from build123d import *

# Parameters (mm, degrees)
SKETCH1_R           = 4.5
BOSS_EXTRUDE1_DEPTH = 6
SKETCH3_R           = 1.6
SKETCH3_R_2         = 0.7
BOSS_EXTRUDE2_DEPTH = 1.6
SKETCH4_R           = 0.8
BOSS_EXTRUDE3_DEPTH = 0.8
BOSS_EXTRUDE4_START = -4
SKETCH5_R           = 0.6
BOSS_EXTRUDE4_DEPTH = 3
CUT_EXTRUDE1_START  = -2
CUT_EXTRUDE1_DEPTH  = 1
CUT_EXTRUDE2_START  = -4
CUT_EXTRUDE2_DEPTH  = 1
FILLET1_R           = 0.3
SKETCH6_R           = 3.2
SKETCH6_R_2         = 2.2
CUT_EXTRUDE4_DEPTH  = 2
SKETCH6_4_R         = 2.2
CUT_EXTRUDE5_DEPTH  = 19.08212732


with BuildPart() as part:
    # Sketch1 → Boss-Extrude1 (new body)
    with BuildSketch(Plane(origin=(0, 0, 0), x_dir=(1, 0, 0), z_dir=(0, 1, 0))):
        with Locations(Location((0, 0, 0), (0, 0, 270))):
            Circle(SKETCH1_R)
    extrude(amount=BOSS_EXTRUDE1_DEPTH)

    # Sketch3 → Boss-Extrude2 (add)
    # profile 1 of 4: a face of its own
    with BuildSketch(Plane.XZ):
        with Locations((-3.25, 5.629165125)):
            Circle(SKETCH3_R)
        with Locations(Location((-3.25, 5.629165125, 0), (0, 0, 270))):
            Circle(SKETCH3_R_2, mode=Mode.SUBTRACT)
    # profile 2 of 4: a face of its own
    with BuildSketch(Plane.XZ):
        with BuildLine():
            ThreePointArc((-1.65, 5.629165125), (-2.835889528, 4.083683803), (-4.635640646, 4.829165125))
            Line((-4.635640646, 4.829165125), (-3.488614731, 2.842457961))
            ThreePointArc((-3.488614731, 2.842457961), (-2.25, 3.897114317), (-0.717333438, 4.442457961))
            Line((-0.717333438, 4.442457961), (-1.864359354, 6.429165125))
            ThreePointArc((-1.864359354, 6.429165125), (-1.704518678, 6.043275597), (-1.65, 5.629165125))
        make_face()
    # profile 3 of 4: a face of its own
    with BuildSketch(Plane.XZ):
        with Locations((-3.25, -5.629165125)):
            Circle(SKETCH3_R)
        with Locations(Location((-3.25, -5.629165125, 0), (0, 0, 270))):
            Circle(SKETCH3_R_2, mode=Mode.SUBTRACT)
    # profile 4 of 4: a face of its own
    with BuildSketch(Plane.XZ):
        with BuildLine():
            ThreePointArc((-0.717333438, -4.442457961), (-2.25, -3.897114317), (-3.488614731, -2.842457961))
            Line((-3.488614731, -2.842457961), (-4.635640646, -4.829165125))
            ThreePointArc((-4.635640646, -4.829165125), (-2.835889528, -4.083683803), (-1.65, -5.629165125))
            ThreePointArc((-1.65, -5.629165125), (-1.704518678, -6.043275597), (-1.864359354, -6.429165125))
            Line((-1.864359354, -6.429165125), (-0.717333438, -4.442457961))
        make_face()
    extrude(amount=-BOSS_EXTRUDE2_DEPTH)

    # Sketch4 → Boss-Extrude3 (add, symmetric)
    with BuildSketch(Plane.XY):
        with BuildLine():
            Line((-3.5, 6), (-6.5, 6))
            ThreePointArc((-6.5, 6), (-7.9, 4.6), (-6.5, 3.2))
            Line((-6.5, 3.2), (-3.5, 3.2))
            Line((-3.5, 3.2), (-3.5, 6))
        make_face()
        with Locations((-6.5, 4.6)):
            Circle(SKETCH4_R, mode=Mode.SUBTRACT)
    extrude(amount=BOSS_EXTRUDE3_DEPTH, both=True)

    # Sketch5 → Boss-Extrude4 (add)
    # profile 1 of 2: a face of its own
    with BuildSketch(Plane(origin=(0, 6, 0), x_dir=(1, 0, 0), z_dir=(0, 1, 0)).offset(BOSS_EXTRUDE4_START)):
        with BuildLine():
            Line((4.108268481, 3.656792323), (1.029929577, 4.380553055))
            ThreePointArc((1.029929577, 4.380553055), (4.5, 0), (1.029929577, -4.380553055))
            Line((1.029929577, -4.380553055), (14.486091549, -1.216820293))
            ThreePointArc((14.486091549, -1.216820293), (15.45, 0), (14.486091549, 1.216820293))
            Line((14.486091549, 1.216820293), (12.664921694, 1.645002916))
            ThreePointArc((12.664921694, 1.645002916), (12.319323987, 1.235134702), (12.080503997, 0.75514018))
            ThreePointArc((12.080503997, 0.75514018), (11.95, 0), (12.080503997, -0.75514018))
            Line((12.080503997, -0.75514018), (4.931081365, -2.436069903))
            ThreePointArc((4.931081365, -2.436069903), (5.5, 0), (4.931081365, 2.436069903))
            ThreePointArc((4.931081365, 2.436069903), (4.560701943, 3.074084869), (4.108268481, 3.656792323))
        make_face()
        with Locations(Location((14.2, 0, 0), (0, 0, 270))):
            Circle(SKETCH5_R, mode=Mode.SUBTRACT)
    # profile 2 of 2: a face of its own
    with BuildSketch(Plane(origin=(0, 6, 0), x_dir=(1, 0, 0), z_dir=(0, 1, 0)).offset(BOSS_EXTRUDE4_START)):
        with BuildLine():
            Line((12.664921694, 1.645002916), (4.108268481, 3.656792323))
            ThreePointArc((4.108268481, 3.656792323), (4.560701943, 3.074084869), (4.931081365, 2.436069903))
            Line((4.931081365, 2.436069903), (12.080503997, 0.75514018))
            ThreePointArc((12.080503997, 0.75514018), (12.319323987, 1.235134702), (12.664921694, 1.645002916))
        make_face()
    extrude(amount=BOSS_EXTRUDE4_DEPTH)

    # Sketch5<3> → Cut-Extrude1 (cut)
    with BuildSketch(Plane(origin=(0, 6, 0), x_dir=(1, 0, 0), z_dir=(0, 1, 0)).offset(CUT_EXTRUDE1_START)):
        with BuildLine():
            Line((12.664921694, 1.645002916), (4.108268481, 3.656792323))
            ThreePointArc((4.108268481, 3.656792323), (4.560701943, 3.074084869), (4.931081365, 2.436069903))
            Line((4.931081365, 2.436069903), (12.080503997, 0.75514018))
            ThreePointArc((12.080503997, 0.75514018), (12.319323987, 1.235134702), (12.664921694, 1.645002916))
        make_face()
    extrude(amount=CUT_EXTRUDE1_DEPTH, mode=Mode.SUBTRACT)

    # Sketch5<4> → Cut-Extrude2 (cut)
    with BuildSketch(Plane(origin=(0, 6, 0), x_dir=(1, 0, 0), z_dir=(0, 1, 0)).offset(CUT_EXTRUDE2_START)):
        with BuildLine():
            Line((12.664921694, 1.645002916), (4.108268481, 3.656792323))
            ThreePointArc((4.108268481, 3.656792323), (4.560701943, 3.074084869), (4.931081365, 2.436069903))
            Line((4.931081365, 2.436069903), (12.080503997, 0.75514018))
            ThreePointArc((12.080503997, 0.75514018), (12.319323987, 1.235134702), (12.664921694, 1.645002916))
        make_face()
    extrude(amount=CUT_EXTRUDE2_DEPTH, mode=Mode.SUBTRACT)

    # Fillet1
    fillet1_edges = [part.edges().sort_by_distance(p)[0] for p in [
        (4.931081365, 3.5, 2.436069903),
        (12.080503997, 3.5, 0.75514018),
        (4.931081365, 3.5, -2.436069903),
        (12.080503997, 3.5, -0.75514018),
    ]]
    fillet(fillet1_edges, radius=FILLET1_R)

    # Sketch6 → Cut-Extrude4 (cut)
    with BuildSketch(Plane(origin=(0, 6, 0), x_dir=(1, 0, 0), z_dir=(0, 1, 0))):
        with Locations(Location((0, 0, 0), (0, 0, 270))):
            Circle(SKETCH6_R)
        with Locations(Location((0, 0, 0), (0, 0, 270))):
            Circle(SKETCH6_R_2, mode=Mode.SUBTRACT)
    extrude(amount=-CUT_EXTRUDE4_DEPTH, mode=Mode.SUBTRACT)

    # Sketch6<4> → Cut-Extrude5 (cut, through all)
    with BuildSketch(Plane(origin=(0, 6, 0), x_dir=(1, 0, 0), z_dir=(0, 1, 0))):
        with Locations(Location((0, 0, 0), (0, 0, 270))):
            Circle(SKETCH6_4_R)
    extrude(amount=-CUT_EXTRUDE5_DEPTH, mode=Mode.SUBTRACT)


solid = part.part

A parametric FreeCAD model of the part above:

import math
import FreeCAD as App
import Part
import Sketcher
Q = App.Units.Quantity


def edges_at(feature, points):
    """Names of the edges that pass closest to the given points."""
    edges = feature.Shape.Edges
    near = lambda p: min(range(len(edges)), key=lambda i: edges[i].distToShape(Part.Vertex(*p))[0])
    return sorted({f"Edge{near(p) + 1}" for p in points})

doc = App.newDocument("Part")
params = doc.addObject("Spreadsheet::Sheet", "Params")
for row, (alias, value) in enumerate([
    ("sketch1_diameter", "9 mm"),
    ("pad1_length", "6 mm"),
    ("sketch2_diameter", "1.4 mm"),
    ("sketch2_radius", "1.6 mm"),
    ("sketch2_radius2", "4.5 mm"),
    ("pad2_length", "1.6 mm"),
    ("sketch3_diameter", "1.6 mm"),
    ("sketch3_radius", "1.4 mm"),
    ("sketch3_width", "3 mm"),
    ("pad3_length", "1.6 mm"),
    ("sketch4_diameter", "1.2 mm"),
    ("sketch4_radius", "4.5 mm"),
    ("sketch4_radius2", "5.5 mm"),
    ("sketch4_radius3", "1.25 mm"),
    ("sketch4_radius4", "2.25 mm"),
    ("pad4_length", "3 mm"),
    ("sketch5_radius", "5.5 mm"),
    ("sketch5_radius2", "2.25 mm"),
    ("pocket1_length", "1 mm"),
    ("sketch6_radius", "5.5 mm"),
    ("sketch6_radius2", "2.25 mm"),
    ("pocket2_length", "1 mm"),
    ("fillet_radius", "0.3 mm"),
    ("sketch7_diameter", "6.4 mm"),
    ("sketch7_diameter2", "4.4 mm"),
    ("pocket3_length", "2 mm"),
    ("sketch8_diameter", "4.4 mm"),
], start=1):
    params.set(f"A{row}", alias)
    params.set(f"B{row}", "=" + value)
    params.setAlias(f"B{row}", alias)

body = doc.addObject("PartDesign::Body", "Body")

sketch1 = body.newObject("Sketcher::SketchObject", "Sketch")
sketch1.AttachmentSupport = (doc.getObject("XZ_Plane"), [""])
sketch1.MapMode = "FlatFace"
sketch1.addGeometry(Part.Circle(App.Vector(0, 0, 0), App.Vector(0, 0, 1), 4.5), False)
sketch1.addConstraint([
    Sketcher.Constraint("Coincident", 0, 3, -1, 1),
    Sketcher.Constraint("Diameter", 0, Q("9 mm")),
])
sketch1.setExpression("Constraints[1]", "Params.sketch1_diameter")
pad1 = body.newObject("PartDesign::Pad", "Pad")
pad1.Profile = sketch1
pad1.setExpression("Length", "Params.pad1_length")
pad1.Reversed = True

sketch2 = body.newObject("Sketcher::SketchObject", "Sketch001")
sketch2.AttachmentSupport = (doc.getObject("XZ_Plane"), [""])
sketch2.MapMode = "FlatFace"
sketch2.addGeometry([
    Part.ArcOfCircle(Part.Circle(App.Vector(-3.25, 5.629165, 0), App.Vector(0, 0, 1), 1.6), math.radians(30), math.radians(210)),
    Part.LineSegment(App.Vector(-4.635641, 4.829165, 0), App.Vector(-3.488615, 2.842458, 0)),
    Part.ArcOfCircle(Part.Circle(App.Vector(0, 0, 0), App.Vector(0, 0, 1), 4.5), math.radians(99.172503), math.radians(140.827497)),
    Part.LineSegment(App.Vector(-0.717333, 4.442458, 0), App.Vector(-1.864359, 6.429165, 0)),
    Part.Circle(App.Vector(-3.25, 5.629165, 0), App.Vector(0, 0, 1), 0.7),
    Part.ArcOfCircle(Part.Circle(App.Vector(-3.25, -5.629165, 0), App.Vector(0, 0, 1), 1.6), math.radians(150), math.radians(330)),
    Part.LineSegment(App.Vector(-1.864359, -6.429165, 0), App.Vector(-0.717333, -4.442458, 0)),
    Part.ArcOfCircle(Part.Circle(App.Vector(0, 0, 0), App.Vector(0, 0, 1), 4.5), math.radians(-140.827497), math.radians(-99.172503)),
    Part.LineSegment(App.Vector(-3.488615, -2.842458, 0), App.Vector(-4.635641, -4.829165, 0)),
    Part.Circle(App.Vector(-3.25, -5.629165, 0), App.Vector(0, 0, 1), 0.7),
], False)
sketch2.addConstraint([
    Sketcher.Constraint("Tangent", 0, 2, 1, 1),
    Sketcher.Constraint("Coincident", 1, 2, 2, 2),
    Sketcher.Constraint("Coincident", 2, 1, 3, 1),
    Sketcher.Constraint("Tangent", 3, 2, 0, 1),
    Sketcher.Constraint("Tangent", 5, 2, 6, 1),
    Sketcher.Constraint("Coincident", 6, 2, 7, 2),
    Sketcher.Constraint("Coincident", 7, 1, 8, 1),
    Sketcher.Constraint("Tangent", 8, 2, 5, 1),
    Sketcher.Constraint("Coincident", 2, 3, -1, 1),
    Sketcher.Constraint("Coincident", 7, 3, -1, 1),
    Sketcher.Constraint("Coincident", 4, 3, 0, 3),
    Sketcher.Constraint("Coincident", 9, 3, 5, 3),
    Sketcher.Constraint("Equal", 0, 5),
    Sketcher.Constraint("Equal", 2, 7),
    Sketcher.Constraint("Equal", 4, 9),
    Sketcher.Constraint("Symmetric", 0, 3, 5, 3, -1),
    Sketcher.Constraint("Parallel", 1, 3),
    Sketcher.Constraint("Parallel", 6, 8),
    Sketcher.Constraint("Vertical", 3, 2, 5, 2),
    Sketcher.Constraint("Equal", 1, 3),
    Sketcher.Constraint("Diameter", 4, Q("1.4 mm")),
    Sketcher.Constraint("Radius", 0, Q("1.6 mm")),
    Sketcher.Constraint("Radius", 2, Q("4.5 mm")),
    Sketcher.Constraint("Angle", 1, Q("-60 deg")),
    Sketcher.Constraint("DistanceX", 0, 3, -1, 1, Q("3.25 mm")),
])
sketch2.setExpression("Constraints[20]", "Params.sketch2_diameter")
sketch2.setExpression("Constraints[21]", "Params.sketch2_radius")
sketch2.setExpression("Constraints[22]", "Params.sketch2_radius2")
pad2 = body.newObject("PartDesign::Pad", "Pad001")
pad2.Profile = sketch2
pad2.setExpression("Length", "Params.pad2_length")
pad2.Reversed = True

sketch3 = body.newObject("Sketcher::SketchObject", "Sketch002")
sketch3.AttachmentSupport = (doc.getObject("XY_Plane"), [""])
sketch3.MapMode = "FlatFace"
sketch3.addGeometry([
    Part.LineSegment(App.Vector(-3.5, 6, 0), App.Vector(-6.5, 6, 0)),
    Part.ArcOfCircle(Part.Circle(App.Vector(-6.5, 4.6, 0), App.Vector(0, 0, 1), 1.4), math.radians(90), math.radians(270)),
    Part.LineSegment(App.Vector(-6.5, 3.2, 0), App.Vector(-3.5, 3.2, 0)),
    Part.LineSegment(App.Vector(-3.5, 3.2, 0), App.Vector(-3.5, 6, 0)),
    Part.Circle(App.Vector(-6.5, 4.6, 0), App.Vector(0, 0, 1), 0.8),
], False)
sketch3.addConstraint([
    Sketcher.Constraint("Tangent", 0, 2, 1, 1),
    Sketcher.Constraint("Tangent", 1, 2, 2, 1),
    Sketcher.Constraint("Coincident", 2, 2, 3, 1),
    Sketcher.Constraint("Coincident", 3, 2, 0, 1),
    Sketcher.Constraint("Horizontal", 0),
    Sketcher.Constraint("Horizontal", 2),
    Sketcher.Constraint("Vertical", 3),
    Sketcher.Constraint("Coincident", 4, 3, 1, 3),
    Sketcher.Constraint("Diameter", 4, Q("1.6 mm")),
    Sketcher.Constraint("Radius", 1, Q("1.4 mm")),
    Sketcher.Constraint("DistanceX", 0, 2, 0, 1, Q("3 mm")),
    Sketcher.Constraint("DistanceY", -1, 1, 0, 2, Q("6 mm")),
    Sketcher.Constraint("DistanceX", 1, 3, -1, 1, Q("6.5 mm")),
])
sketch3.setExpression("Constraints[8]", "Params.sketch3_diameter")
sketch3.setExpression("Constraints[9]", "Params.sketch3_radius")
sketch3.setExpression("Constraints[10]", "Params.sketch3_width")
pad3 = body.newObject("PartDesign::Pad", "Pad002")
pad3.Profile = sketch3
pad3.setExpression("Length", "Params.pad3_length")
pad3.Midplane = True

sketch4 = body.newObject("Sketcher::SketchObject", "Sketch003")
sketch4.AttachmentSupport = (doc.getObject("XZ_Plane"), [""])
sketch4.MapMode = "FlatFace"
sketch4.AttachmentOffset = App.Placement(App.Vector(0, 0, -2), App.Rotation())
sketch4.addGeometry([
    Part.LineSegment(App.Vector(4.108268, -3.656792, 0), App.Vector(1.02993, -4.380553, 0)),
    Part.ArcOfCircle(Part.Circle(App.Vector(0, 0, 0), App.Vector(0, 0, 1), 4.5), math.radians(-76.769256), math.radians(76.769256)),
    Part.LineSegment(App.Vector(1.02993, 4.380553, 0), App.Vector(14.486092, 1.21682, 0)),
    Part.ArcOfCircle(Part.Circle(App.Vector(14.2, 0, 0), App.Vector(0, 0, 1), 1.25), math.radians(-76.769256), math.radians(76.769256)),
    Part.LineSegment(App.Vector(14.486092, -1.21682, 0), App.Vector(12.664922, -1.645003, 0)),
    Part.LineSegment(App.Vector(12.664922, -1.645003, 0), App.Vector(4.108268, -3.656792, 0)),
    Part.ArcOfCircle(Part.Circle(App.Vector(0, 0, 0), App.Vector(0, 0, 1), 5.5), math.radians(-26.290453), math.radians(26.290453)),
    Part.LineSegment(App.Vector(4.931081, -2.43607, 0), App.Vector(12.080504, -0.75514, 0)),
    Part.ArcOfCircle(Part.Circle(App.Vector(14.2, 0, 0), App.Vector(0, 0, 1), 2.25), math.radians(160.389886), math.radians(199.610114)),
    Part.LineSegment(App.Vector(12.080504, 0.75514, 0), App.Vector(4.931081, 2.43607, 0)),
    Part.Circle(App.Vector(14.2, 0, 0), App.Vector(0, 0, 1), 0.6),
], False)
sketch4.addConstraint([
    Sketcher.Constraint("Tangent", 0, 2, 1, 1),
    Sketcher.Constraint("Tangent", 1, 2, 2, 1),
    Sketcher.Constraint("Tangent", 2, 2, 3, 2),
    Sketcher.Constraint("Tangent", 3, 1, 4, 1),
    Sketcher.Constraint("Coincident", 4, 2, 5, 1),
    Sketcher.Constraint("Coincident", 5, 2, 0, 1),
    Sketcher.Constraint("Coincident", 6, 1, 7, 1),
    Sketcher.Constraint("Coincident", 7, 2, 8, 2),
    Sketcher.Constraint("Coincident", 8, 1, 9, 1),
    Sketcher.Constraint("Coincident", 9, 2, 6, 2),
    Sketcher.Constraint("Coincident", 1, 3, -1, 1),
    Sketcher.Constraint("Coincident", 6, 3, -1, 1),
    Sketcher.Constraint("Coincident", 8, 3, 3, 3),
    Sketcher.Constraint("Coincident", 10, 3, 3, 3),
    Sketcher.Constraint("Symmetric", 2, 2, 3, 1, -1),
    Sketcher.Constraint("Parallel", 0, 4),
    Sketcher.Constraint("Parallel", 5, 7),
    Sketcher.Constraint("Parallel", 2, 9),
    Sketcher.Constraint("Vertical", 7, 2, 8, 1),
    Sketcher.Constraint("Diameter", 10, Q("1.2 mm")),
    Sketcher.Constraint("Radius", 1, Q("4.5 mm")),
    Sketcher.Constraint("Radius", 6, Q("5.5 mm")),
    Sketcher.Constraint("Radius", 3, Q("1.25 mm")),
    Sketcher.Constraint("Radius", 8, Q("2.25 mm")),
    Sketcher.Constraint("DistanceX", -1, 1, 3, 3, Q("14.2 mm")),
    Sketcher.Constraint("Distance", 4, Q("1.870829 mm")),
    Sketcher.Constraint("Distance", 7, Q("7.34437 mm")),
    Sketcher.Constraint("DistanceX", -1, 1, 5, 2, Q("4.108268 mm")),
])
sketch4.setExpression("Constraints[19]", "Params.sketch4_diameter")
sketch4.setExpression("Constraints[20]", "Params.sketch4_radius")
sketch4.setExpression("Constraints[21]", "Params.sketch4_radius2")
sketch4.setExpression("Constraints[22]", "Params.sketch4_radius3")
sketch4.setExpression("Constraints[23]", "Params.sketch4_radius4")
pad4 = body.newObject("PartDesign::Pad", "Pad003")
pad4.Profile = sketch4
pad4.setExpression("Length", "Params.pad4_length")
pad4.Reversed = True

sketch5 = body.newObject("Sketcher::SketchObject", "Sketch004")
sketch5.AttachmentSupport = (doc.getObject("XZ_Plane"), [""])
sketch5.MapMode = "FlatFace"
sketch5.AttachmentOffset = App.Placement(App.Vector(0, 0, -4), App.Rotation())
sketch5.addGeometry([
    Part.LineSegment(App.Vector(12.664922, -1.645003, 0), App.Vector(4.108268, -3.656792, 0)),
    Part.ArcOfCircle(Part.Circle(App.Vector(0, 0, 0), App.Vector(0, 0, 1), 5.5), math.radians(-41.672455), math.radians(-26.290453)),
    Part.LineSegment(App.Vector(4.931081, -2.43607, 0), App.Vector(12.080504, -0.75514, 0)),
    Part.ArcOfCircle(Part.Circle(App.Vector(14.2, 0, 0), App.Vector(0, 0, 1), 2.25), math.radians(-160.389886), math.radians(-133.020268)),
], False)
sketch5.addConstraint([
    Sketcher.Constraint("Coincident", 0, 2, 1, 1),
    Sketcher.Constraint("Coincident", 1, 2, 2, 1),
    Sketcher.Constraint("Coincident", 2, 2, 3, 1),
    Sketcher.Constraint("Coincident", 3, 2, 0, 1),
    Sketcher.Constraint("Coincident", 1, 3, -1, 1),
    Sketcher.Constraint("PointOnObject", 3, 3, -1),
    Sketcher.Constraint("Parallel", 0, 2),
    Sketcher.Constraint("Radius", 1, Q("5.5 mm")),
    Sketcher.Constraint("Radius", 3, Q("2.25 mm")),
    Sketcher.Constraint("DistanceX", -1, 1, 3, 3, Q("14.2 mm")),
    Sketcher.Constraint("Distance", 2, Q("7.34437 mm")),
    Sketcher.Constraint("DistanceX", -1, 1, 0, 2, Q("4.108268 mm")),
    Sketcher.Constraint("DistanceX", -1, 1, 1, 2, Q("4.931081 mm")),
])
sketch5.setExpression("Constraints[7]", "Params.sketch5_radius")
sketch5.setExpression("Constraints[8]", "Params.sketch5_radius2")
pocket1 = body.newObject("PartDesign::Pocket", "Pocket")
pocket1.Profile = sketch5
pocket1.setExpression("Length", "Params.pocket1_length")

sketch6 = body.newObject("Sketcher::SketchObject", "Sketch005")
sketch6.AttachmentSupport = (doc.getObject("XZ_Plane"), [""])
sketch6.MapMode = "FlatFace"
sketch6.AttachmentOffset = App.Placement(App.Vector(0, 0, -2), App.Rotation())
sketch6.addGeometry([
    Part.LineSegment(App.Vector(12.664922, -1.645003, 0), App.Vector(4.108268, -3.656792, 0)),
    Part.ArcOfCircle(Part.Circle(App.Vector(0, 0, 0), App.Vector(0, 0, 1), 5.5), math.radians(-41.672455), math.radians(-26.290453)),
    Part.LineSegment(App.Vector(4.931081, -2.43607, 0), App.Vector(12.080504, -0.75514, 0)),
    Part.ArcOfCircle(Part.Circle(App.Vector(14.2, 0, 0), App.Vector(0, 0, 1), 2.25), math.radians(-160.389886), math.radians(-133.020268)),
], False)
sketch6.addConstraint([
    Sketcher.Constraint("Coincident", 0, 2, 1, 1),
    Sketcher.Constraint("Coincident", 1, 2, 2, 1),
    Sketcher.Constraint("Coincident", 2, 2, 3, 1),
    Sketcher.Constraint("Coincident", 3, 2, 0, 1),
    Sketcher.Constraint("Coincident", 1, 3, -1, 1),
    Sketcher.Constraint("PointOnObject", 3, 3, -1),
    Sketcher.Constraint("Parallel", 0, 2),
    Sketcher.Constraint("Radius", 1, Q("5.5 mm")),
    Sketcher.Constraint("Radius", 3, Q("2.25 mm")),
    Sketcher.Constraint("DistanceX", -1, 1, 3, 3, Q("14.2 mm")),
    Sketcher.Constraint("Distance", 2, Q("7.34437 mm")),
    Sketcher.Constraint("DistanceX", -1, 1, 0, 2, Q("4.108268 mm")),
    Sketcher.Constraint("DistanceX", -1, 1, 1, 2, Q("4.931081 mm")),
])
sketch6.setExpression("Constraints[7]", "Params.sketch6_radius")
sketch6.setExpression("Constraints[8]", "Params.sketch6_radius2")
pocket2 = body.newObject("PartDesign::Pocket", "Pocket001")
pocket2.Profile = sketch6
pocket2.setExpression("Length", "Params.pocket2_length")
doc.recompute()

fillet = body.newObject("PartDesign::Fillet", "Fillet")
fillet.Base = (pocket2, edges_at(pocket2, [
    (4.931, 3.5, 2.436),
    (12.081, 3.5, 0.755),
    (4.931, 3.5, -2.436),
    (12.081, 3.5, -0.755),
]))
fillet.setExpression("Radius", "Params.fillet_radius")

sketch7 = body.newObject("Sketcher::SketchObject", "Sketch006")
sketch7.AttachmentSupport = (doc.getObject("XZ_Plane"), [""])
sketch7.MapMode = "FlatFace"
sketch7.AttachmentOffset = App.Placement(App.Vector(0, 0, -6), App.Rotation())
sketch7.addGeometry([
    Part.Circle(App.Vector(0, 0, 0), App.Vector(0, 0, 1), 3.2),
    Part.Circle(App.Vector(0, 0, 0), App.Vector(0, 0, 1), 2.2),
], False)
sketch7.addConstraint([
    Sketcher.Constraint("Coincident", 0, 3, -1, 1),
    Sketcher.Constraint("Coincident", 1, 3, -1, 1),
    Sketcher.Constraint("Diameter", 0, Q("6.4 mm")),
    Sketcher.Constraint("Diameter", 1, Q("4.4 mm")),
])
sketch7.setExpression("Constraints[2]", "Params.sketch7_diameter")
sketch7.setExpression("Constraints[3]", "Params.sketch7_diameter2")
pocket3 = body.newObject("PartDesign::Pocket", "Pocket002")
pocket3.Profile = sketch7
pocket3.setExpression("Length", "Params.pocket3_length")
pocket3.Reversed = True

sketch8 = body.newObject("Sketcher::SketchObject", "Sketch007")
sketch8.AttachmentSupport = (doc.getObject("XZ_Plane"), [""])
sketch8.MapMode = "FlatFace"
sketch8.AttachmentOffset = App.Placement(App.Vector(0, 0, -6), App.Rotation())
sketch8.addGeometry(Part.Circle(App.Vector(0, 0, 0), App.Vector(0, 0, 1), 2.2), False)
sketch8.addConstraint([
    Sketcher.Constraint("Coincident", 0, 3, -1, 1),
    Sketcher.Constraint("Diameter", 0, Q("4.4 mm")),
])
sketch8.setExpression("Constraints[1]", "Params.sketch8_diameter")
pocket4 = body.newObject("PartDesign::Pocket", "Pocket003")
pocket4.Profile = sketch8
pocket4.Type = "ThroughAll"
pocket4.Reversed = True

doc.recompute()
